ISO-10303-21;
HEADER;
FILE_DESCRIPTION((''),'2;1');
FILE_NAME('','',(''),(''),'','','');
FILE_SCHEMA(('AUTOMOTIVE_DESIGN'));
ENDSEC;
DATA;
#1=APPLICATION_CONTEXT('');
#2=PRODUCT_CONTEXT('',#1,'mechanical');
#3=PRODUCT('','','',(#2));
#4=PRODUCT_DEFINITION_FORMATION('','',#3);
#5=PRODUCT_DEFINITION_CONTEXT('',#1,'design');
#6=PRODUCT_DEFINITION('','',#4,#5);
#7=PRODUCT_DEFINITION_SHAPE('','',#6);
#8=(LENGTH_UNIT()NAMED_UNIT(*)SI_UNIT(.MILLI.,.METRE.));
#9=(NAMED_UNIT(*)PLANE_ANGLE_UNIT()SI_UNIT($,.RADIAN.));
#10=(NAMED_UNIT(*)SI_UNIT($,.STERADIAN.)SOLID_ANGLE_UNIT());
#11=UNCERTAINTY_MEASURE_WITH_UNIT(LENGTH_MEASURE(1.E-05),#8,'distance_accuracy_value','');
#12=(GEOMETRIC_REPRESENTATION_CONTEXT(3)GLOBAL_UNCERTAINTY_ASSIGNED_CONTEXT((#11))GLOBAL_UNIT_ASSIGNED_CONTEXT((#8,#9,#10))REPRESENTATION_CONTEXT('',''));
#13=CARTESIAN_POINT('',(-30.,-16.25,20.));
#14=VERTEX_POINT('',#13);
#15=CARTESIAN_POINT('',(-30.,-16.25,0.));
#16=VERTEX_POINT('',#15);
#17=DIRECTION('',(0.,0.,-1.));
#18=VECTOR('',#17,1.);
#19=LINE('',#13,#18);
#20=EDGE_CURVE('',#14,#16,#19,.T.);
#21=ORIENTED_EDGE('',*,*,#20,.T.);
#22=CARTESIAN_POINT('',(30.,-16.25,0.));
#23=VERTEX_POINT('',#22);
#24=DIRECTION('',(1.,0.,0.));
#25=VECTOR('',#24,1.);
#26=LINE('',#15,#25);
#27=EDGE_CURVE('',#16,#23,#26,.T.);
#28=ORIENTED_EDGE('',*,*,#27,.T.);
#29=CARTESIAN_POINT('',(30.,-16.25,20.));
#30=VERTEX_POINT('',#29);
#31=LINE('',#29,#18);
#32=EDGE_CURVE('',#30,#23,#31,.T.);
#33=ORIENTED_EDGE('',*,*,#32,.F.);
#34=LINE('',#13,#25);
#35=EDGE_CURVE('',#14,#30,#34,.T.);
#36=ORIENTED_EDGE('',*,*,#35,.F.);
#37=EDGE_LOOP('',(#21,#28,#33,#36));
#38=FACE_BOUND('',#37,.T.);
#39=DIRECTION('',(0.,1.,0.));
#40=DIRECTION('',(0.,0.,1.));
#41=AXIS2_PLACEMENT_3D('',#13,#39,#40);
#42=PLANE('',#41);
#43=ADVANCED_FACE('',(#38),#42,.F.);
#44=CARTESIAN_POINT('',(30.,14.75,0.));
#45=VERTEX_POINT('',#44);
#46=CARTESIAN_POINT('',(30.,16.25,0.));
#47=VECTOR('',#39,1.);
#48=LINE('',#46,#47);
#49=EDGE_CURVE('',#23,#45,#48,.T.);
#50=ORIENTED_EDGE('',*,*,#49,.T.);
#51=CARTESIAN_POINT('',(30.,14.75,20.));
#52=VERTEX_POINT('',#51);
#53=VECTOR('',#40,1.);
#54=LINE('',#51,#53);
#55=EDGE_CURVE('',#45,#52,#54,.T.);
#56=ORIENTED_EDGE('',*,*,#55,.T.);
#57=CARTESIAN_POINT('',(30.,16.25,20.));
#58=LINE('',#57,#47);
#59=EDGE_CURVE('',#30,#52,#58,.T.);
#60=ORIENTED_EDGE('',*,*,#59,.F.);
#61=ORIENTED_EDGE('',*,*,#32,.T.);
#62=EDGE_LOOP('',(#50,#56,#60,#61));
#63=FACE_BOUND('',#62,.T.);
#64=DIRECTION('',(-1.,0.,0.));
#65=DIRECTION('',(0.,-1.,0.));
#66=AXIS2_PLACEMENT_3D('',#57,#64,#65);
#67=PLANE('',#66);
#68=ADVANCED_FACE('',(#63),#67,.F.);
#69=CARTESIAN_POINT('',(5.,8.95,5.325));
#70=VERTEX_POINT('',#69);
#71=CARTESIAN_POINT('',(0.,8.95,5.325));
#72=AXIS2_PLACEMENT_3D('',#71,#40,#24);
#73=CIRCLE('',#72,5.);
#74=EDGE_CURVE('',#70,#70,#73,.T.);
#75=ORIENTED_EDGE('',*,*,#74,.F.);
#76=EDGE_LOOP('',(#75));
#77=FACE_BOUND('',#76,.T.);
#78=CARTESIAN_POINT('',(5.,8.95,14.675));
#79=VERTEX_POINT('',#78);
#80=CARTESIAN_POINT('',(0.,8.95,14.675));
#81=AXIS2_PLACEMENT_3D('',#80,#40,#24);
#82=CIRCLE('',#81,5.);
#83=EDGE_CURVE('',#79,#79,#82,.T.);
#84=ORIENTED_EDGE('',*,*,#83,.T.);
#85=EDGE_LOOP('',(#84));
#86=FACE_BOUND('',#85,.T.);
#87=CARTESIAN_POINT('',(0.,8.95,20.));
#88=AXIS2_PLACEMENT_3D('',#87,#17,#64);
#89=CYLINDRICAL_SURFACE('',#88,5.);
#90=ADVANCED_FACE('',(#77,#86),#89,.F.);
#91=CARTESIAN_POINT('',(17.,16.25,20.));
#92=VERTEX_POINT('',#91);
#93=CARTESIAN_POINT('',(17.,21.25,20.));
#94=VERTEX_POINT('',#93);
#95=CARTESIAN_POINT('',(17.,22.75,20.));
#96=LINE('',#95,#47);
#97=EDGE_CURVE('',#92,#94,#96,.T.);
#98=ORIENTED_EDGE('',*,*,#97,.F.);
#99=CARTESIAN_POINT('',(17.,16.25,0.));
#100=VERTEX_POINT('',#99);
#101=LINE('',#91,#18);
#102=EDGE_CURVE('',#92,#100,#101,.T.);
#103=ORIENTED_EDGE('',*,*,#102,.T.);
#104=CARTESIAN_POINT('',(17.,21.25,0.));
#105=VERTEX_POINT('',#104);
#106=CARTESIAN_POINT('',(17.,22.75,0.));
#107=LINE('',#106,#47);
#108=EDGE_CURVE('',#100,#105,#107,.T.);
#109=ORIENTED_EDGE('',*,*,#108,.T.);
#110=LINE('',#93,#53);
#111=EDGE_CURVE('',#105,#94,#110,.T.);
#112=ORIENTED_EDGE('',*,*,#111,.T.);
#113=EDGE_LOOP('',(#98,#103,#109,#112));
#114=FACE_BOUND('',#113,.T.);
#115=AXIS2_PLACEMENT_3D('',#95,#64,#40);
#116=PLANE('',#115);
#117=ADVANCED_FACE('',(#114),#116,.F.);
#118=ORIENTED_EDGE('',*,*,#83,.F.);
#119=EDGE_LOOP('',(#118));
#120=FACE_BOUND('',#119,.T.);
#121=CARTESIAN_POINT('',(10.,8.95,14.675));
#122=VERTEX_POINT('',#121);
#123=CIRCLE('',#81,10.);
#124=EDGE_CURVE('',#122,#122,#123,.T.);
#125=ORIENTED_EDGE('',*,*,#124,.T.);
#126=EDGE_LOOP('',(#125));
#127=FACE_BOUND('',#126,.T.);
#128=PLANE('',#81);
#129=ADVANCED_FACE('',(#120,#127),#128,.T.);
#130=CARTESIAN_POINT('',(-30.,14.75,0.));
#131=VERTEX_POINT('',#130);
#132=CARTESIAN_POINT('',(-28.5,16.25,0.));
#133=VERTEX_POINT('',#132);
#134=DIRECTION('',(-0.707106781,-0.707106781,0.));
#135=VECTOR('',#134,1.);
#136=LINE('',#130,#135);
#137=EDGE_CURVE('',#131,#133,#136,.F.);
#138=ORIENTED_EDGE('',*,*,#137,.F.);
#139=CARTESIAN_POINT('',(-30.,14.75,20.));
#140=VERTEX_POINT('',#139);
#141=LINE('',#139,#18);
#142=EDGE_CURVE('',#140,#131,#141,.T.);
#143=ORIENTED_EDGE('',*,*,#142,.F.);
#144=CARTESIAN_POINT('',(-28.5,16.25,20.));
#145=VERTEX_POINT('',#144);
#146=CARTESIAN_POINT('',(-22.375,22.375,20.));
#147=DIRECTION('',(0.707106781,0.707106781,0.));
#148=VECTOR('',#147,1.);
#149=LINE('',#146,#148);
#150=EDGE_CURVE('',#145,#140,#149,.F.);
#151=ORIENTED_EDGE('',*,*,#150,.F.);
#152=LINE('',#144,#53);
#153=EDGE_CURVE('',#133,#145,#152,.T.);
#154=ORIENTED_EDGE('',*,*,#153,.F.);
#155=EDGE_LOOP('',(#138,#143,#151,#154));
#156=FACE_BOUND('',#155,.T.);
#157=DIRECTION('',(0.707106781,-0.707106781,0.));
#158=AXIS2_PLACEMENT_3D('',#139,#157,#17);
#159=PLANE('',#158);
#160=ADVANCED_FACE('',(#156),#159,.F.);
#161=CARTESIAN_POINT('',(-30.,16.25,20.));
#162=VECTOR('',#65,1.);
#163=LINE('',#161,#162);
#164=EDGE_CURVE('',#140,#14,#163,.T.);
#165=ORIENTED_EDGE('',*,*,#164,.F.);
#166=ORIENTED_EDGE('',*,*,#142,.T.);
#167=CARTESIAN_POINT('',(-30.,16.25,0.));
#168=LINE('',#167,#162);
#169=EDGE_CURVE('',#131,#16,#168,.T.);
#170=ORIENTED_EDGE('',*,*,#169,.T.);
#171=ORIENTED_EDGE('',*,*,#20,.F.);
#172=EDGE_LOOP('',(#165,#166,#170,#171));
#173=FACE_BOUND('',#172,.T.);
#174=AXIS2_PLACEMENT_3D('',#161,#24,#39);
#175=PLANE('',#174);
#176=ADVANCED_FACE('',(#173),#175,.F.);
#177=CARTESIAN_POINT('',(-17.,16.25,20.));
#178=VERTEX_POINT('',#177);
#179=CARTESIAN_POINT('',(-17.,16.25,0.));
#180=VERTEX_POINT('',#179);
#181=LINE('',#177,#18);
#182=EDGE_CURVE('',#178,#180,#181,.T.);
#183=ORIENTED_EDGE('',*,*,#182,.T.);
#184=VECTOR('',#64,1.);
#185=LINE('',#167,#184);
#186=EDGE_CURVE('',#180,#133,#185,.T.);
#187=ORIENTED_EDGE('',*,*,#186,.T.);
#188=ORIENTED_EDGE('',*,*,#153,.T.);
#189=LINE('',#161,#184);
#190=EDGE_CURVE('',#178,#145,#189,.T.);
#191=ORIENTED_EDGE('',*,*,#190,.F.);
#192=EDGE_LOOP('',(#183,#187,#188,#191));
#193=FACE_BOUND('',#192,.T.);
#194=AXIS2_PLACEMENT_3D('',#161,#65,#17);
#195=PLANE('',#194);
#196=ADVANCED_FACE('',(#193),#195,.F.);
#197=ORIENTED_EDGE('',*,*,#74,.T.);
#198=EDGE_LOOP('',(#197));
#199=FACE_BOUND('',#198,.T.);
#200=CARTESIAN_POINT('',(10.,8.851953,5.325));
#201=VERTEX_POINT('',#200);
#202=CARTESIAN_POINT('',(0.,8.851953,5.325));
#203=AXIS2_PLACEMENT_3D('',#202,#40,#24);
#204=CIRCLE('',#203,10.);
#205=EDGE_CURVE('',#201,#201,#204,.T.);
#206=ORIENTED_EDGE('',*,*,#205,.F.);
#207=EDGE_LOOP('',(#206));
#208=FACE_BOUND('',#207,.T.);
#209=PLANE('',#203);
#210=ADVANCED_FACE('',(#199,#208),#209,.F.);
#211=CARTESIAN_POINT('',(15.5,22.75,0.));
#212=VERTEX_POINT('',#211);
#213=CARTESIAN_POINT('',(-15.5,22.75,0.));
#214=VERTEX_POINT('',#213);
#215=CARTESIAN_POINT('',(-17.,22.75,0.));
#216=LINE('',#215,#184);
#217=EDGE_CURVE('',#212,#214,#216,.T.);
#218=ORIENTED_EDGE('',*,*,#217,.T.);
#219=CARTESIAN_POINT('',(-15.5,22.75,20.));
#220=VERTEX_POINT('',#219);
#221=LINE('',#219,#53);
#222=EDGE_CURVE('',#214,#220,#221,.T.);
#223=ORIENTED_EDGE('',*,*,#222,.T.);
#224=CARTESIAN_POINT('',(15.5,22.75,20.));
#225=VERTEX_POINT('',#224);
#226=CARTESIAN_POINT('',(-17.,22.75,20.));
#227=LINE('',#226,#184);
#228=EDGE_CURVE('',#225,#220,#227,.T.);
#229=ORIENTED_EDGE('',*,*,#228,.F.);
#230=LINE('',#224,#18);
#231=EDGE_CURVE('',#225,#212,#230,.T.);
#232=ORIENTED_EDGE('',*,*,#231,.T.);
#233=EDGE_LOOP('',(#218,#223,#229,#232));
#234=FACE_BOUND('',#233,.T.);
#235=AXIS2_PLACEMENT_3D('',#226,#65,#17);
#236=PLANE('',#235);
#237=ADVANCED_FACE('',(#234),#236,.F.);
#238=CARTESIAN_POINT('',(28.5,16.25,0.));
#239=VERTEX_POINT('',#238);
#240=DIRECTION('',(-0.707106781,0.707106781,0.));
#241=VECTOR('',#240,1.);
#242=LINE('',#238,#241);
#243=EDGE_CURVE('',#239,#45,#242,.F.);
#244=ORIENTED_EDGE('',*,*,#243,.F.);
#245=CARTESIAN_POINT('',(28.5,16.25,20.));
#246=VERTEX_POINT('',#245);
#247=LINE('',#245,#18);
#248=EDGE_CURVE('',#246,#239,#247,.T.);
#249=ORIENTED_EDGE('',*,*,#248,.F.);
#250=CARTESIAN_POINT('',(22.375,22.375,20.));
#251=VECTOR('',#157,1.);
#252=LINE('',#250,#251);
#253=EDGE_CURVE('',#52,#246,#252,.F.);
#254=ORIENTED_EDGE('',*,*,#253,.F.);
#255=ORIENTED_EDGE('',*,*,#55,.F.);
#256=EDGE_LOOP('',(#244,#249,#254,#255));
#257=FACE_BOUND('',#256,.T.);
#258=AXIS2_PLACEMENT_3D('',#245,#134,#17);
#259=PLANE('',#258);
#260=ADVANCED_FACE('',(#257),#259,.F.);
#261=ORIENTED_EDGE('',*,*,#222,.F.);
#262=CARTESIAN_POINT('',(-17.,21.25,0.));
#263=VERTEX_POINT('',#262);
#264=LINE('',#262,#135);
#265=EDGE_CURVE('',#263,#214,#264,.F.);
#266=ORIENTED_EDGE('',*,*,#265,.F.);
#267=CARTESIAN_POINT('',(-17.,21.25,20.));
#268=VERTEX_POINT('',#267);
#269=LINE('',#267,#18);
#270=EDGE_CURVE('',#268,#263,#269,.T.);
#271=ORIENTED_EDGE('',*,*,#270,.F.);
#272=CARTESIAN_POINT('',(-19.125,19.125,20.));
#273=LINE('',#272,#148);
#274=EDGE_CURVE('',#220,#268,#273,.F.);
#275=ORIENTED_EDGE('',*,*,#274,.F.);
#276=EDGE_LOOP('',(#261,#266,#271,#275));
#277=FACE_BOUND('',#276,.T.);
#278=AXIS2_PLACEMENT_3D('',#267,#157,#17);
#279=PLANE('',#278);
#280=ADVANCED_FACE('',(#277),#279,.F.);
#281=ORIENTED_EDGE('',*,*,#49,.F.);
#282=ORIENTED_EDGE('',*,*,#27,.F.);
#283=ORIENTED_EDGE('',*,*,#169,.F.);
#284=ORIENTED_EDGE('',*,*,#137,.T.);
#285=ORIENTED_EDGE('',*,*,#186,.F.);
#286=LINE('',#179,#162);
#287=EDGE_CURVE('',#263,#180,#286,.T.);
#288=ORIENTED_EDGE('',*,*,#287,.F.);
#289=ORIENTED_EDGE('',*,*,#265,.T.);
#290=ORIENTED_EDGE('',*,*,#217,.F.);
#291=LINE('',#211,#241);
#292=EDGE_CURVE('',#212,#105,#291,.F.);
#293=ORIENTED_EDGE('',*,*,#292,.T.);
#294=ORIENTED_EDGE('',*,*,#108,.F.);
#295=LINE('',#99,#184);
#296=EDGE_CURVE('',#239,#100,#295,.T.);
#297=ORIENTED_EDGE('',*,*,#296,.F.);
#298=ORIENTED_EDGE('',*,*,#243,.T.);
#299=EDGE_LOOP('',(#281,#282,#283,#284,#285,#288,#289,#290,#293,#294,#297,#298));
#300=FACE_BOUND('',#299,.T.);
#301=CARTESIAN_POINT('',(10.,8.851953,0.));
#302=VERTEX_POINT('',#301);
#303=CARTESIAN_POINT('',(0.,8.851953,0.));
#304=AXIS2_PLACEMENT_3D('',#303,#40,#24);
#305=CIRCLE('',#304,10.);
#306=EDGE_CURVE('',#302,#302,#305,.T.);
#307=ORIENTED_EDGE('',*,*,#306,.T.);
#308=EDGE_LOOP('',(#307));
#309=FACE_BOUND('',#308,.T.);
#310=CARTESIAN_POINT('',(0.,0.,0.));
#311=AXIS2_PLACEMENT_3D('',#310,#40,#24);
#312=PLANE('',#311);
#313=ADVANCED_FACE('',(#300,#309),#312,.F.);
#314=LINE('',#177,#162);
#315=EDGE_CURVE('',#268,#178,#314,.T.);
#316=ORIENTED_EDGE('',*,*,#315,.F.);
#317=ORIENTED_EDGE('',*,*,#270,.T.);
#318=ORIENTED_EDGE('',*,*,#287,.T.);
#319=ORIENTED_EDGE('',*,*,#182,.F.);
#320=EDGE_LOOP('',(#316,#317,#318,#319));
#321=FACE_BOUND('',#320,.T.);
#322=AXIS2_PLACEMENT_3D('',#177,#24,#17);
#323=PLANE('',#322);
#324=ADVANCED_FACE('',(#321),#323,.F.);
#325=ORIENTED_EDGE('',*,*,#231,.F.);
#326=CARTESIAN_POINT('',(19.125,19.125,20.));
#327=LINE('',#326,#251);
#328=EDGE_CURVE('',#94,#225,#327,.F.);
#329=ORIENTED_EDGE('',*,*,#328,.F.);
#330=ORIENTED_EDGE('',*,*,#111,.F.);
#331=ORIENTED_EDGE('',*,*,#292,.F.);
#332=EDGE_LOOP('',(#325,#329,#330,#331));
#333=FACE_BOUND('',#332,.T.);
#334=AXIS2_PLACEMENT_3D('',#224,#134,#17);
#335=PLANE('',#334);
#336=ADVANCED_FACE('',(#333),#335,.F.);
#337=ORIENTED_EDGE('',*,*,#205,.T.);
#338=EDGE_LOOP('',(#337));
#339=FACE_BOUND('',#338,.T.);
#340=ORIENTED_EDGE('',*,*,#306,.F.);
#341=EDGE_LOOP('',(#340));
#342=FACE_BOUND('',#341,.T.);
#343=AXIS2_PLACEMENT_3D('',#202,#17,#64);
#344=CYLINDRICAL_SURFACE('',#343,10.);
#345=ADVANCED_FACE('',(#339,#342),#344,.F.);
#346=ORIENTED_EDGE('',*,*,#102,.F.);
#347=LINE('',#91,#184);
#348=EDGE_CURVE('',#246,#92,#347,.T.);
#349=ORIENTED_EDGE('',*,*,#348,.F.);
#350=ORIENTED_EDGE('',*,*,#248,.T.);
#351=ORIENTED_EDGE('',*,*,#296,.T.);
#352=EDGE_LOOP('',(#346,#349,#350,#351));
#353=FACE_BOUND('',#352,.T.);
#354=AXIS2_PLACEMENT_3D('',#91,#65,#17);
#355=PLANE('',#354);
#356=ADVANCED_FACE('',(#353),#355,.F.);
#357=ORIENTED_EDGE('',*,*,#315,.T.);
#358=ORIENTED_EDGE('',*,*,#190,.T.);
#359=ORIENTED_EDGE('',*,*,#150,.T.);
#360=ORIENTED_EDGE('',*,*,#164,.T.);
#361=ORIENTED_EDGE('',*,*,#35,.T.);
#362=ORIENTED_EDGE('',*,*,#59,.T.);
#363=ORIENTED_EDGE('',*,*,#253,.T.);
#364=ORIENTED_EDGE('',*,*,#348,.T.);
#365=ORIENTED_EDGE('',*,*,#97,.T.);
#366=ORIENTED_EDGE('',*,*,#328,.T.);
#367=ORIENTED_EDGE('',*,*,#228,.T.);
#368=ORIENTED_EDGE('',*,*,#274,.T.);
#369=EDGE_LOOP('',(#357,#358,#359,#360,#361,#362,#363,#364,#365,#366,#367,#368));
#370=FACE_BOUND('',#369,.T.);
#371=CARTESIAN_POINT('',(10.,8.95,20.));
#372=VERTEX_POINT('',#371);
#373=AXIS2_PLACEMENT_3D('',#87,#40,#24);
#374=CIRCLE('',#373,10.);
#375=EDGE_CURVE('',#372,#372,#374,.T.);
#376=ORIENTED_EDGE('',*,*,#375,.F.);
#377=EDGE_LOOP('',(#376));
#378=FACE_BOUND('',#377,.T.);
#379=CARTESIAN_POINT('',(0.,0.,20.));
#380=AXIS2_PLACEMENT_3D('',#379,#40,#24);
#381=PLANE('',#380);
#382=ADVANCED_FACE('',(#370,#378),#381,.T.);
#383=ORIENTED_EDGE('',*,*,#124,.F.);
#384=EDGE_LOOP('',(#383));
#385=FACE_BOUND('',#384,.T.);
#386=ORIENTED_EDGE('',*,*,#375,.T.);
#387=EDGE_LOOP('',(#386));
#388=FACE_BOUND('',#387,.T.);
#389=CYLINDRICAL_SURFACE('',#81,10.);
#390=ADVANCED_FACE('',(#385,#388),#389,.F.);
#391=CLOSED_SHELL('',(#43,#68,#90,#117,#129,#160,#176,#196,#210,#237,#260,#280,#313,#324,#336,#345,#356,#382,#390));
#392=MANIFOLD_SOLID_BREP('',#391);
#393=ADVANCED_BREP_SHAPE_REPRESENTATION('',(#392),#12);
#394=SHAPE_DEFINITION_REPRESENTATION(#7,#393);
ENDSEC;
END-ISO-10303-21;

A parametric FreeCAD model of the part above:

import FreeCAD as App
import Part
import Sketcher
Q = App.Units.Quantity


def edges_at(feature, points):
    """Names of the edges that pass closest to the given points."""
    edges = feature.Shape.Edges
    near = lambda p: min(range(len(edges)), key=lambda i: edges[i].distToShape(Part.Vertex(*p))[0])
    return sorted({f"Edge{near(p) + 1}" for p in points})

doc = App.newDocument("Part")
body = doc.addObject("PartDesign::Body", "Body")

sketch1 = body.newObject("Sketcher::SketchObject", "Sketch")
sketch1.AttachmentSupport = (doc.getObject("XY_Plane"), [""])
sketch1.MapMode = "FlatFace"
sketch1.addGeometry([
    Part.LineSegment(App.Vector(-17, 16.25, 0), App.Vector(-30, 16.25, 0)),
    Part.LineSegment(App.Vector(-30, 16.25, 0), App.Vector(-30, -16.25, 0)),
    Part.LineSegment(App.Vector(-30, -16.25, 0), App.Vector(30, -16.25, 0)),
    Part.LineSegment(App.Vector(30, -16.25, 0), App.Vector(30, 16.25, 0)),
    Part.LineSegment(App.Vector(30, 16.25, 0), App.Vector(17, 16.25, 0)),
    Part.LineSegment(App.Vector(17, 16.25, 0), App.Vector(17, 22.75, 0)),
    Part.LineSegment(App.Vector(17, 22.75, 0), App.Vector(-17, 22.75, 0)),
    Part.LineSegment(App.Vector(-17, 22.75, 0), App.Vector(-17, 16.25, 0)),
], False)
sketch1.addConstraint([
    Sketcher.Constraint("Coincident", 0, 2, 1, 1),
    Sketcher.Constraint("Coincident", 1, 2, 2, 1),
    Sketcher.Constraint("Coincident", 2, 2, 3, 1),
    Sketcher.Constraint("Coincident", 3, 2, 4, 1),
    Sketcher.Constraint("Coincident", 4, 2, 5, 1),
    Sketcher.Constraint("Coincident", 5, 2, 6, 1),
    Sketcher.Constraint("Coincident", 6, 2, 7, 1),
    Sketcher.Constraint("Coincident", 7, 2, 0, 1),
    Sketcher.Constraint("Horizontal", 0),
    Sketcher.Constraint("Vertical", 1),
    Sketcher.Constraint("Horizontal", 2),
    Sketcher.Constraint("Vertical", 3),
    Sketcher.Constraint("Horizontal", 4),
    Sketcher.Constraint("Vertical", 5),
    Sketcher.Constraint("Horizontal", 6),
    Sketcher.Constraint("Vertical", 7),
    Sketcher.Constraint("Symmetric", 0, 2, 2, 2, -1, 1),
    Sketcher.Constraint("Symmetric", 4, 2, 7, 2, -2),
    Sketcher.Constraint("DistanceX", 0, 2, 0, 1, Q("13 mm")),
    Sketcher.Constraint("DistanceX", 2, 1, 2, 2, Q("60 mm")),
    Sketcher.Constraint("DistanceY", 1, 2, 1, 1, Q("32.5 mm")),
    Sketcher.Constraint("DistanceY", 5, 1, 5, 2, Q("6.5 mm")),
])
pad1 = body.newObject("PartDesign::Pad", "Pad")
pad1.Profile = sketch1
pad1.Length = 20

sketch2 = body.newObject("Sketcher::SketchObject", "Sketch001")
sketch2.AttachmentSupport = (doc.getObject("XY_Plane"), [""])
sketch2.MapMode = "FlatFace"
sketch2.addGeometry(Part.Circle(App.Vector(0, 8.95, 0), App.Vector(0, 0, 1), 5), False)
sketch2.addConstraint([
    Sketcher.Constraint("PointOnObject", 0, 3, -2),
    Sketcher.Constraint("Diameter", 0, Q("10 mm")),
    Sketcher.Constraint("DistanceY", -1, 1, 0, 3, Q("8.95 mm")),
])
pocket1 = body.newObject("PartDesign::Pocket", "Pocket")
pocket1.Profile = sketch2
pocket1.Type = "ThroughAll"
pocket1.Reversed = True
doc.recompute()

chamfer = body.newObject("PartDesign::Chamfer", "Chamfer")
chamfer.Base = (pocket1, edges_at(pocket1, [
    (-30, 16.25, 10),
    (-17, 22.75, 10),
    (17, 22.75, 10),
    (30, 16.25, 10),
]))
chamfer.Size = 1.5

sketch3 = body.newObject("Sketcher::SketchObject", "Sketch002")
sketch3.AttachmentSupport = (doc.getObject("XY_Plane"), [""])
sketch3.MapMode = "FlatFace"
sketch3.addGeometry(Part.Circle(App.Vector(0, 8.851953, 0), App.Vector(0, 0, 1), 10), False)
sketch3.addConstraint([
    Sketcher.Constraint("PointOnObject", 0, 3, -2),
    Sketcher.Constraint("Diameter", 0, Q("20 mm")),
    Sketcher.Constraint("DistanceY", -1, 1, 0, 3, Q("8.851953 mm")),
])
pocket2 = body.newObject("PartDesign::Pocket", "Pocket001")
pocket2.Profile = sketch3
pocket2.Length = 5.325
pocket2.Reversed = True

sketch4 = body.newObject("Sketcher::SketchObject", "Sketch003")
sketch4.AttachmentSupport = (doc.getObject("XY_Plane"), [""])
sketch4.MapMode = "FlatFace"
sketch4.AttachmentOffset = App.Placement(App.Vector(0, 0, 20), App.Rotation())
sketch4.addGeometry(Part.Circle(App.Vector(0, 8.95, 0), App.Vector(0, 0, 1), 10), False)
sketch4.addConstraint([
    Sketcher.Constraint("PointOnObject", 0, 3, -2),
    Sketcher.Constraint("Diameter", 0, Q("20 mm")),
    Sketcher.Constraint("DistanceY", -1, 1, 0, 3, Q("8.95 mm")),
])
pocket3 = body.newObject("PartDesign::Pocket", "Pocket002")
pocket3.Profile = sketch4
pocket3.Length = 5.325

doc.recompute()
